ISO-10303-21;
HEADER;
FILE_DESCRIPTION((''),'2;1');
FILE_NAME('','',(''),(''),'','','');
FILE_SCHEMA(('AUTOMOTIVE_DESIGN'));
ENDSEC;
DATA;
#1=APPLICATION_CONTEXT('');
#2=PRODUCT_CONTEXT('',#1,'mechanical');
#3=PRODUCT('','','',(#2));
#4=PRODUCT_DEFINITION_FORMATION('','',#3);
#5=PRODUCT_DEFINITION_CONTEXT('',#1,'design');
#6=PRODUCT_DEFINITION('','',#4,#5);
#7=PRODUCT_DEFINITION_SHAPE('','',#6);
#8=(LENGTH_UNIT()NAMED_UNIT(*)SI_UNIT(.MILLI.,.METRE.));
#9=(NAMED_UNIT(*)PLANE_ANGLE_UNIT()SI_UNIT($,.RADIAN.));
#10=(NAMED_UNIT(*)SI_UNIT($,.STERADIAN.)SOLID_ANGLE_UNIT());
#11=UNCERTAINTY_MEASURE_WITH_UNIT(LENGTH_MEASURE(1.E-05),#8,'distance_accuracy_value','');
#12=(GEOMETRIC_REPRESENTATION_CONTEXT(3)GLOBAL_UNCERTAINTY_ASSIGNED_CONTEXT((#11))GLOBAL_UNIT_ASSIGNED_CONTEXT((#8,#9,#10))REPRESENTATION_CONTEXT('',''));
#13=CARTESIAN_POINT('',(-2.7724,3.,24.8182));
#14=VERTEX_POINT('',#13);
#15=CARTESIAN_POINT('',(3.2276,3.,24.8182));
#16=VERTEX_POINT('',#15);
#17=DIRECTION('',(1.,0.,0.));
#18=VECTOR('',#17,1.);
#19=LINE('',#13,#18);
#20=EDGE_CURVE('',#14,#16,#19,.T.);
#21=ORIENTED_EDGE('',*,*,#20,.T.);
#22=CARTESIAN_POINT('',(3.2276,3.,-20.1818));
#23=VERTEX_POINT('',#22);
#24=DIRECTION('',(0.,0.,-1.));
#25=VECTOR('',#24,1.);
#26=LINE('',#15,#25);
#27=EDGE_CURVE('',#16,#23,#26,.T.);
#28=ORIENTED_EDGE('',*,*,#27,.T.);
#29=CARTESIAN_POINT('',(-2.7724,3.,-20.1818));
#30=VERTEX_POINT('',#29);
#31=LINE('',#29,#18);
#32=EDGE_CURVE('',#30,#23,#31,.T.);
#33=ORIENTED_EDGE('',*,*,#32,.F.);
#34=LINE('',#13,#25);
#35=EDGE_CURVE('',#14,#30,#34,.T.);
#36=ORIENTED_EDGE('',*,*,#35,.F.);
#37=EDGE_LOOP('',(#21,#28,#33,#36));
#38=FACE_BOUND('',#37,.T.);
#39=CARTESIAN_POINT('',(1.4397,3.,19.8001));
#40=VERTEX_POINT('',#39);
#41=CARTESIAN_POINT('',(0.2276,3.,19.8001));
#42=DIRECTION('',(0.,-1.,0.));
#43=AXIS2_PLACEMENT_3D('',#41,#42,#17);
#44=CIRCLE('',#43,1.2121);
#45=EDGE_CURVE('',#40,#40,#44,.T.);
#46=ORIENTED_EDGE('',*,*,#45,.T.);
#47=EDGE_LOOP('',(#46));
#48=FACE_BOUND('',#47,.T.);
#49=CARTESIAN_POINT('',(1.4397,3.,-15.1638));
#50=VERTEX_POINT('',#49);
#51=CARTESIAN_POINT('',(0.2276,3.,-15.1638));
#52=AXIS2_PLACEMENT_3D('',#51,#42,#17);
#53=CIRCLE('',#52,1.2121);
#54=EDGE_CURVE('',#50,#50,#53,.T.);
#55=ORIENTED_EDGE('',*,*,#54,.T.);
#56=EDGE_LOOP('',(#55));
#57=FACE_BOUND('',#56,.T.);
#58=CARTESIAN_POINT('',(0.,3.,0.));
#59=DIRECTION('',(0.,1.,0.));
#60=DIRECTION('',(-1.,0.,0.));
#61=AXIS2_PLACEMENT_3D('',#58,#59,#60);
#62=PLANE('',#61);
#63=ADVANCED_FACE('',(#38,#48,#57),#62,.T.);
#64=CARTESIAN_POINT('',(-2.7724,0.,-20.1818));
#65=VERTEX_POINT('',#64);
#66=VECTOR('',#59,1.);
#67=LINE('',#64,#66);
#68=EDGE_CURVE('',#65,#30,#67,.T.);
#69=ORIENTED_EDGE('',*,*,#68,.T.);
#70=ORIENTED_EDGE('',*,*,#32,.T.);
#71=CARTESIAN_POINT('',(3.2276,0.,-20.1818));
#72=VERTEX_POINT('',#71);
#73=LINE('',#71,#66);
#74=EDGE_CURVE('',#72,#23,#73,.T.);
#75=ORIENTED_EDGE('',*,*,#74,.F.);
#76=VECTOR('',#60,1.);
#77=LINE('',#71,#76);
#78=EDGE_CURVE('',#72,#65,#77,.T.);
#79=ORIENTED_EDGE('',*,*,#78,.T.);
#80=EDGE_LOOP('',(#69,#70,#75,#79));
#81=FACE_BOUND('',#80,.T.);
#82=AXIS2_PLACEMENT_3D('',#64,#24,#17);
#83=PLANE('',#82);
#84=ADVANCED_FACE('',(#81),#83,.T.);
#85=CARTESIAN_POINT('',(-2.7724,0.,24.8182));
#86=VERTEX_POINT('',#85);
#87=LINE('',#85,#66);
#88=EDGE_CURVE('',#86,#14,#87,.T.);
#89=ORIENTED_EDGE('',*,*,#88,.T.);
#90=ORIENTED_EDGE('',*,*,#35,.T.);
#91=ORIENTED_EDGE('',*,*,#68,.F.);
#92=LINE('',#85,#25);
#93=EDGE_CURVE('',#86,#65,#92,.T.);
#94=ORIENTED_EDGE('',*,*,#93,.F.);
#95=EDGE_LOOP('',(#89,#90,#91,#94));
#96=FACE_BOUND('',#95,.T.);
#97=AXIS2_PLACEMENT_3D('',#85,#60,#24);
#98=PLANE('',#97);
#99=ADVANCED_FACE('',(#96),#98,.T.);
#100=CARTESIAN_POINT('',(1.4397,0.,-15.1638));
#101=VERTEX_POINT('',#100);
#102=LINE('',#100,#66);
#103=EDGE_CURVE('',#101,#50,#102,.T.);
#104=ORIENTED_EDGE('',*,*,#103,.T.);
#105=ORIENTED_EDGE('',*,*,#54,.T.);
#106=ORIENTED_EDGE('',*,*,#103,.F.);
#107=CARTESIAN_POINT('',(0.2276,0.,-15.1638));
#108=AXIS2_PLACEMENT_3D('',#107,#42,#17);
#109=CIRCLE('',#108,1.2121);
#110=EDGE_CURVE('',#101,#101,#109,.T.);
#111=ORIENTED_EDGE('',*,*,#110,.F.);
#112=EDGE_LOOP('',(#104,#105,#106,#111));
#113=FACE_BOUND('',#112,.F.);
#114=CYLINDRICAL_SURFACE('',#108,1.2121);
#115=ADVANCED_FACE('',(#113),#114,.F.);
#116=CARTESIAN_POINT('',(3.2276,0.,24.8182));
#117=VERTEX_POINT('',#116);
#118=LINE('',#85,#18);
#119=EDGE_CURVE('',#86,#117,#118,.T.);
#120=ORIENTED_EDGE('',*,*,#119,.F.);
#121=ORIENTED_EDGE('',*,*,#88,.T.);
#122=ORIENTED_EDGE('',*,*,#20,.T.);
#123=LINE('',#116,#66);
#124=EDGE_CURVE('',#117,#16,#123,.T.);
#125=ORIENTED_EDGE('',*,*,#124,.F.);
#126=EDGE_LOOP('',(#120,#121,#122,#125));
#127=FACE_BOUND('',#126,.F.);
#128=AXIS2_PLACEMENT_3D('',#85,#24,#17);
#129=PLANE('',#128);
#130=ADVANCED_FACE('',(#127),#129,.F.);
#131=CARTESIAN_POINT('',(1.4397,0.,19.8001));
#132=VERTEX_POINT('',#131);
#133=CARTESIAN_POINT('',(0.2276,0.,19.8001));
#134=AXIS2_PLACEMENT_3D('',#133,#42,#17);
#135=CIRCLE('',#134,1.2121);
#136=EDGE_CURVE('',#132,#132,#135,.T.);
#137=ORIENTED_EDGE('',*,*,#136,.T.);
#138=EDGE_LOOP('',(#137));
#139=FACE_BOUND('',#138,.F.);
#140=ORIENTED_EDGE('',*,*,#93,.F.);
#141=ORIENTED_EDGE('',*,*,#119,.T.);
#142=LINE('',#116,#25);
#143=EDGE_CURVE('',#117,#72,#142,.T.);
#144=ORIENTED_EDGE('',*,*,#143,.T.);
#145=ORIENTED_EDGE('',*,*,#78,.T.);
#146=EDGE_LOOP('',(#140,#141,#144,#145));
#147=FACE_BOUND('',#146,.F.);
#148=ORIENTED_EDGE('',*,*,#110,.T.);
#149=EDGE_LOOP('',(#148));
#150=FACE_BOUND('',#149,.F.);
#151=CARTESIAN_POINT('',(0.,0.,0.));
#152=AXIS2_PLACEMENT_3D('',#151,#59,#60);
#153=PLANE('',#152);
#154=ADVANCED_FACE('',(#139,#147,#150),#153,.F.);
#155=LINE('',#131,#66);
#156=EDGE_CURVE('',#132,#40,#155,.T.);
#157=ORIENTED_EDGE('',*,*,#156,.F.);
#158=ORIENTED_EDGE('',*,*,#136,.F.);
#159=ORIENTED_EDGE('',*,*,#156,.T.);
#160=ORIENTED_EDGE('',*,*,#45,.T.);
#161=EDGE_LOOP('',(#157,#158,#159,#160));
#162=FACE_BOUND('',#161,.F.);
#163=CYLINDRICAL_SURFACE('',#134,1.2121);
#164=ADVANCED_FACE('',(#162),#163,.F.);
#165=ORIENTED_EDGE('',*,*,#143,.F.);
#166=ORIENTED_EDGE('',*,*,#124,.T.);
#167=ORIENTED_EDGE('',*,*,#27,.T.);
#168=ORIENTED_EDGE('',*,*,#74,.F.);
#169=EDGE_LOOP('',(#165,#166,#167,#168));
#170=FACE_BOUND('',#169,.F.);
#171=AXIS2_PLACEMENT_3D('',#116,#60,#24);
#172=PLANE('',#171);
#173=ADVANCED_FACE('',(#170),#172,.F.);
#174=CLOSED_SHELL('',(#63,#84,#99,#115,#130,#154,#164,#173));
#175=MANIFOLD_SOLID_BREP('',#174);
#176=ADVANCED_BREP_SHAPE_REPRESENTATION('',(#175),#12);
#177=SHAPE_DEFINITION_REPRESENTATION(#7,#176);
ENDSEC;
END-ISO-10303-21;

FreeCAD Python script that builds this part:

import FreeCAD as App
import Part
import Sketcher

doc = App.newDocument("Part")
body = doc.addObject("PartDesign::Body", "Body")

# Sketch on XZ plane
sketch1 = body.newObject("Sketcher::SketchObject", "Sketch")
sketch1.AttachmentSupport = (doc.getObject("XZ_Plane"), [""])
sketch1.MapMode = "FlatFace"
sketch1.addGeometry(Part.LineSegment(App.Vector(-2.7724, -20.1818, 0), App.Vector(-2.7724, 24.8182, 0)), False)
sketch1.addGeometry(Part.LineSegment(App.Vector(-2.7724, 24.8182, 0), App.Vector(3.2276, 24.8182, 0)), False)
sketch1.addGeometry(Part.LineSegment(App.Vector(3.2276, 24.8182, 0), App.Vector(3.2276, -20.1818, 0)), False)
sketch1.addGeometry(Part.LineSegment(App.Vector(3.2276, -20.1818, 0), App.Vector(-2.7724, -20.1818, 0)), False)
sketch1.addConstraint(Sketcher.Constraint("Coincident", 0, 2, 1, 1))
sketch1.addConstraint(Sketcher.Constraint("Coincident", 1, 2, 2, 1))
sketch1.addConstraint(Sketcher.Constraint("Coincident", 2, 2, 3, 1))
sketch1.addConstraint(Sketcher.Constraint("Coincident", 3, 2, 0, 1))
sketch1.addConstraint(Sketcher.Constraint("Vertical", 0))
sketch1.addConstraint(Sketcher.Constraint("Horizontal", 1))
sketch1.addConstraint(Sketcher.Constraint("Vertical", 2))
sketch1.addConstraint(Sketcher.Constraint("Horizontal", 3))
sketch1.addConstraint(Sketcher.Constraint("DistanceX", 1, 1, 1, 2, 6.0))
sketch1.addConstraint(Sketcher.Constraint("DistanceY", 0, 1, 0, 2, 45.0))
sketch1.addConstraint(Sketcher.Constraint("DistanceX", 0, 2, -1, 1, 2.7724))
sketch1.addConstraint(Sketcher.Constraint("DistanceY", -1, 1, 0, 2, 24.8182))
pad1 = body.newObject("PartDesign::Pad", "Pad")
pad1.Profile = sketch1
pad1.Length = 3
pad1.Reversed = True

# Sketch on XZ plane
sketch2 = body.newObject("Sketcher::SketchObject", "Sketch001")
sketch2.AttachmentSupport = (doc.getObject("XZ_Plane"), [""])
sketch2.MapMode = "FlatFace"
sketch2.addGeometry(Part.Circle(App.Vector(0.2276, 19.8001, 0), App.Vector(0, 0, 1), 1.2121), False)
sketch2.addConstraint(Sketcher.Constraint("Diameter", 0, 2.4242))
sketch2.addConstraint(Sketcher.Constraint("DistanceY", -1, 1, 0, 3, 19.8))
sketch2.addConstraint(Sketcher.Constraint("DistanceX", -1, 1, 0, 3, 0.2276))
pocket1 = body.newObject("PartDesign::Pocket", "Pocket")
pocket1.Profile = sketch2
pocket1.Length = 10.9375

# Sketch on XZ plane
sketch3 = body.newObject("Sketcher::SketchObject", "Sketch002")
sketch3.AttachmentSupport = (doc.getObject("XZ_Plane"), [""])
sketch3.MapMode = "FlatFace"
sketch3.addGeometry(Part.Circle(App.Vector(0.2276, -15.1638, 0), App.Vector(0, 0, 1), 1.2121), False)
sketch3.addConstraint(Sketcher.Constraint("Diameter", 0, 2.4242))
sketch3.addConstraint(Sketcher.Constraint("DistanceX", -1, 1, 0, 3, 0.2276))
sketch3.addConstraint(Sketcher.Constraint("DistanceY", 0, 3, -1, 1, 15.1638))
pocket2 = body.newObject("PartDesign::Pocket", "Pocket001")
pocket2.Profile = sketch3
pocket2.Length = 10.6375

doc.recompute()
